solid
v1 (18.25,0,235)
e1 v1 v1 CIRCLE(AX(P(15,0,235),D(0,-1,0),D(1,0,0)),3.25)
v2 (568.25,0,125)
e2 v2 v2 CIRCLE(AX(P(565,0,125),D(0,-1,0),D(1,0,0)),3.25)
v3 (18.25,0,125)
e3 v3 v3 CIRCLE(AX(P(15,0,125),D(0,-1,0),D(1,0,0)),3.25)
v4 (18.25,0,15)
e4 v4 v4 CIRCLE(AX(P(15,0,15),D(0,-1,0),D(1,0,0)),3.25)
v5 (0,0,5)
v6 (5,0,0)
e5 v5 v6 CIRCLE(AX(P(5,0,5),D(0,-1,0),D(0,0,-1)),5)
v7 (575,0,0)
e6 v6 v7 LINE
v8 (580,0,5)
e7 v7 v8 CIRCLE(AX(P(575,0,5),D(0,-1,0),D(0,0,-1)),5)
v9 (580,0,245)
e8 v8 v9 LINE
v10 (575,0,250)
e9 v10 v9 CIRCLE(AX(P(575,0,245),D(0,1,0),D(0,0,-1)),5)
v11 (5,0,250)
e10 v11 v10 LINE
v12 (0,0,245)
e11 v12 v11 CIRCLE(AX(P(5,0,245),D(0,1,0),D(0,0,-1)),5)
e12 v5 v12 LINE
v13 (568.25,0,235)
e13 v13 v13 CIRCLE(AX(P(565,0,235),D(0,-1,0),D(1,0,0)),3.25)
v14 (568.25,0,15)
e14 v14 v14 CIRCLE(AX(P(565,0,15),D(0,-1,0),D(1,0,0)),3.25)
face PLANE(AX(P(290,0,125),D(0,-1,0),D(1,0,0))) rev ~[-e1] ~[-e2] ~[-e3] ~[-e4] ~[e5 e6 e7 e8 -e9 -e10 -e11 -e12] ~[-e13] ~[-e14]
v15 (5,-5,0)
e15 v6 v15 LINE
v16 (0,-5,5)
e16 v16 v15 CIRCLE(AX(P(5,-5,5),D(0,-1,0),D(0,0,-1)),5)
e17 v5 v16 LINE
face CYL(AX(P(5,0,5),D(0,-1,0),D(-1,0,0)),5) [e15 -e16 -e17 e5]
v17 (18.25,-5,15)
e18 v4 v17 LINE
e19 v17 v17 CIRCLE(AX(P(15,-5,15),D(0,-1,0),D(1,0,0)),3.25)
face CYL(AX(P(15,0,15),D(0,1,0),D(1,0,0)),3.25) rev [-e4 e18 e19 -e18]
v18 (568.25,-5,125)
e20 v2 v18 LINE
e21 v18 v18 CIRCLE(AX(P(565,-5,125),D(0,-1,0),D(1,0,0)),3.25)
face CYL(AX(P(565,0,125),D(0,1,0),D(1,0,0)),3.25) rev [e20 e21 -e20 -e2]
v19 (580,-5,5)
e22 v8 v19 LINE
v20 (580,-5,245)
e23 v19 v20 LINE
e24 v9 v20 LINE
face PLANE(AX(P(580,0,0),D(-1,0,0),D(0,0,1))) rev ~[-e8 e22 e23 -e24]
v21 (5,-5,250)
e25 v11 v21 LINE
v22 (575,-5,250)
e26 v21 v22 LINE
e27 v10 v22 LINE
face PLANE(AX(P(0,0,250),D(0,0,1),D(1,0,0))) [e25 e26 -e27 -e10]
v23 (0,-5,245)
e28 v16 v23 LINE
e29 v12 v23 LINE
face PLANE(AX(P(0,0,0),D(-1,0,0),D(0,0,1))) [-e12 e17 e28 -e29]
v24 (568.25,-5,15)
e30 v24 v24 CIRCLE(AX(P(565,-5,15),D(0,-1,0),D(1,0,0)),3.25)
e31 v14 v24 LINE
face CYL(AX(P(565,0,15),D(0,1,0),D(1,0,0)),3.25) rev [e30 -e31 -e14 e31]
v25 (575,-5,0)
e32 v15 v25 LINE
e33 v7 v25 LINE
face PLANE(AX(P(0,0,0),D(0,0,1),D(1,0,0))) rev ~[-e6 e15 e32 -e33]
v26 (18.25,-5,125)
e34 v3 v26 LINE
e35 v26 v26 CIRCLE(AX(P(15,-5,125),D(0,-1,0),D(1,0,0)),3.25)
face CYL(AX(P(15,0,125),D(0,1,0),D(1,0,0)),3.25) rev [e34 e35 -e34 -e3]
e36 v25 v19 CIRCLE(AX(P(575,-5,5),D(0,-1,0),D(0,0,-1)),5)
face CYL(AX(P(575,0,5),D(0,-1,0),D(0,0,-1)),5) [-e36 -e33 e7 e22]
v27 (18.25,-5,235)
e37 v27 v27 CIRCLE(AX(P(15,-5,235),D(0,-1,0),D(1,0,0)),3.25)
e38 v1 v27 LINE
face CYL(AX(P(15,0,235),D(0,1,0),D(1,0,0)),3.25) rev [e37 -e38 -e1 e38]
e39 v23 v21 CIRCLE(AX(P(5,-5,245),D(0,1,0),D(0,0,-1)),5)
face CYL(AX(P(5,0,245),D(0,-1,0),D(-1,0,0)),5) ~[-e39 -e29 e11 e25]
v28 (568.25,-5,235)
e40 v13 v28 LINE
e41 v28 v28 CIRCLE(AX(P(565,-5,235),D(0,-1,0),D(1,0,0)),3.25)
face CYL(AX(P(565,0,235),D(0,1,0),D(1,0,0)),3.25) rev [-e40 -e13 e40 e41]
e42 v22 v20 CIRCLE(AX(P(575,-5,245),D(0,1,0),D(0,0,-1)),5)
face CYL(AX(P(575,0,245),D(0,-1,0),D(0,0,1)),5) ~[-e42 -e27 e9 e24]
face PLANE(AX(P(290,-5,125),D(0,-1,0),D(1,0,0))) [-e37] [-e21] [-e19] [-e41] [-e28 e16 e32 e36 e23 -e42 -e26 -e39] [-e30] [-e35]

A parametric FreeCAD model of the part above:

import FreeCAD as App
import Part
import Sketcher
Q = App.Units.Quantity


def edges_at(feature, points):
    """Names of the edges that pass closest to the given points."""
    edges = feature.Shape.Edges
    near = lambda p: min(range(len(edges)), key=lambda i: edges[i].distToShape(Part.Vertex(*p))[0])
    return sorted({f"Edge{near(p) + 1}" for p in points})


def add_polygon(sketch, points):
    """Adds a closed chain of lines whose ends are joined by coincident constraints."""
    first, n = sketch.GeometryCount, len(points)
    for a, b in zip(points, points[1:] + points[:1]):
        sketch.addGeometry(Part.LineSegment(App.Vector(*a, 0), App.Vector(*b, 0)), False)
    for i in range(n):
        sketch.addConstraint(Sketcher.Constraint("Coincident", first + i, 2, first + (i + 1) % n, 1))

doc = App.newDocument("Part")
body = doc.addObject("PartDesign::Body", "Body")

# Sketch on XZ plane
sketch1 = body.newObject("Sketcher::SketchObject", "Sketch")
sketch1.AttachmentSupport = (doc.getObject("XZ_Plane"), [""])
sketch1.MapMode = "FlatFace"
add_polygon(sketch1, [(0, 250), (0, 0), (580, 0), (580, 250)])  # lines 0-3
sketch1.addGeometry(Part.Circle(App.Vector(15, 15, 0), App.Vector(0, 0, 1), 3.25), False)  # 4
sketch1.addGeometry(Part.Circle(App.Vector(565, 15, 0), App.Vector(0, 0, 1), 3.25), False)  # 5
sketch1.addGeometry(Part.Circle(App.Vector(15, 125, 0), App.Vector(0, 0, 1), 3.25), False)  # 6
sketch1.addGeometry(Part.Circle(App.Vector(15, 235, 0), App.Vector(0, 0, 1), 3.25), False)  # 7
sketch1.addGeometry(Part.Circle(App.Vector(565, 125, 0), App.Vector(0, 0, 1), 3.25), False)  # 8
sketch1.addGeometry(Part.Circle(App.Vector(565, 235, 0), App.Vector(0, 0, 1), 3.25), False)  # 9
sketch1.addConstraint([
    Sketcher.Constraint("Vertical", 0),
    Sketcher.Constraint("Horizontal", 1),
    Sketcher.Constraint("Vertical", 2),
    Sketcher.Constraint("Horizontal", 3),
    Sketcher.Constraint("Coincident", 0, 2, -1, 1),
    Sketcher.Constraint("Equal", 4, 5),
    Sketcher.Constraint("Equal", 5, 6),
    Sketcher.Constraint("Equal", 6, 7),
    Sketcher.Constraint("Equal", 7, 8),
    Sketcher.Constraint("Equal", 8, 9),
    Sketcher.Constraint("Horizontal", 4, 3, 5, 3),
    Sketcher.Constraint("Horizontal", 6, 3, 8, 3),
    Sketcher.Constraint("Horizontal", 7, 3, 9, 3),
    Sketcher.Constraint("Vertical", 4, 3, 6, 3),
    Sketcher.Constraint("Vertical", 6, 3, 7, 3),
    Sketcher.Constraint("Vertical", 5, 3, 8, 3),
    Sketcher.Constraint("Vertical", 8, 3, 9, 3),
    Sketcher.Constraint("Diameter", 4, Q("6.5 mm")),
    Sketcher.Constraint("DistanceX", 1, 1, 1, 2, Q("580 mm")),
    Sketcher.Constraint("DistanceY", 0, 2, 0, 1, Q("250 mm")),
    Sketcher.Constraint("DistanceX", -1, 1, 4, 3, Q("15 mm")),
    Sketcher.Constraint("DistanceY", -1, 1, 4, 3, Q("15 mm")),
    Sketcher.Constraint("DistanceX", -1, 1, 5, 3, Q("565 mm")),
    Sketcher.Constraint("DistanceY", -1, 1, 6, 3, Q("125 mm")),
    Sketcher.Constraint("DistanceY", -1, 1, 7, 3, Q("235 mm")),
])
pad1 = body.newObject("PartDesign::Pad", "Pad")
pad1.Profile = sketch1
pad1.Length = 5
doc.recompute()

fillet = body.newObject("PartDesign::Fillet", "Fillet")
fillet.Base = (pad1, edges_at(pad1, [
    (0, -2.5, 250),
    (0, -2.5, 0),
    (580, -2.5, 0),
    (580, -2.5, 250),
]))
fillet.Radius = 5

doc.recompute()
